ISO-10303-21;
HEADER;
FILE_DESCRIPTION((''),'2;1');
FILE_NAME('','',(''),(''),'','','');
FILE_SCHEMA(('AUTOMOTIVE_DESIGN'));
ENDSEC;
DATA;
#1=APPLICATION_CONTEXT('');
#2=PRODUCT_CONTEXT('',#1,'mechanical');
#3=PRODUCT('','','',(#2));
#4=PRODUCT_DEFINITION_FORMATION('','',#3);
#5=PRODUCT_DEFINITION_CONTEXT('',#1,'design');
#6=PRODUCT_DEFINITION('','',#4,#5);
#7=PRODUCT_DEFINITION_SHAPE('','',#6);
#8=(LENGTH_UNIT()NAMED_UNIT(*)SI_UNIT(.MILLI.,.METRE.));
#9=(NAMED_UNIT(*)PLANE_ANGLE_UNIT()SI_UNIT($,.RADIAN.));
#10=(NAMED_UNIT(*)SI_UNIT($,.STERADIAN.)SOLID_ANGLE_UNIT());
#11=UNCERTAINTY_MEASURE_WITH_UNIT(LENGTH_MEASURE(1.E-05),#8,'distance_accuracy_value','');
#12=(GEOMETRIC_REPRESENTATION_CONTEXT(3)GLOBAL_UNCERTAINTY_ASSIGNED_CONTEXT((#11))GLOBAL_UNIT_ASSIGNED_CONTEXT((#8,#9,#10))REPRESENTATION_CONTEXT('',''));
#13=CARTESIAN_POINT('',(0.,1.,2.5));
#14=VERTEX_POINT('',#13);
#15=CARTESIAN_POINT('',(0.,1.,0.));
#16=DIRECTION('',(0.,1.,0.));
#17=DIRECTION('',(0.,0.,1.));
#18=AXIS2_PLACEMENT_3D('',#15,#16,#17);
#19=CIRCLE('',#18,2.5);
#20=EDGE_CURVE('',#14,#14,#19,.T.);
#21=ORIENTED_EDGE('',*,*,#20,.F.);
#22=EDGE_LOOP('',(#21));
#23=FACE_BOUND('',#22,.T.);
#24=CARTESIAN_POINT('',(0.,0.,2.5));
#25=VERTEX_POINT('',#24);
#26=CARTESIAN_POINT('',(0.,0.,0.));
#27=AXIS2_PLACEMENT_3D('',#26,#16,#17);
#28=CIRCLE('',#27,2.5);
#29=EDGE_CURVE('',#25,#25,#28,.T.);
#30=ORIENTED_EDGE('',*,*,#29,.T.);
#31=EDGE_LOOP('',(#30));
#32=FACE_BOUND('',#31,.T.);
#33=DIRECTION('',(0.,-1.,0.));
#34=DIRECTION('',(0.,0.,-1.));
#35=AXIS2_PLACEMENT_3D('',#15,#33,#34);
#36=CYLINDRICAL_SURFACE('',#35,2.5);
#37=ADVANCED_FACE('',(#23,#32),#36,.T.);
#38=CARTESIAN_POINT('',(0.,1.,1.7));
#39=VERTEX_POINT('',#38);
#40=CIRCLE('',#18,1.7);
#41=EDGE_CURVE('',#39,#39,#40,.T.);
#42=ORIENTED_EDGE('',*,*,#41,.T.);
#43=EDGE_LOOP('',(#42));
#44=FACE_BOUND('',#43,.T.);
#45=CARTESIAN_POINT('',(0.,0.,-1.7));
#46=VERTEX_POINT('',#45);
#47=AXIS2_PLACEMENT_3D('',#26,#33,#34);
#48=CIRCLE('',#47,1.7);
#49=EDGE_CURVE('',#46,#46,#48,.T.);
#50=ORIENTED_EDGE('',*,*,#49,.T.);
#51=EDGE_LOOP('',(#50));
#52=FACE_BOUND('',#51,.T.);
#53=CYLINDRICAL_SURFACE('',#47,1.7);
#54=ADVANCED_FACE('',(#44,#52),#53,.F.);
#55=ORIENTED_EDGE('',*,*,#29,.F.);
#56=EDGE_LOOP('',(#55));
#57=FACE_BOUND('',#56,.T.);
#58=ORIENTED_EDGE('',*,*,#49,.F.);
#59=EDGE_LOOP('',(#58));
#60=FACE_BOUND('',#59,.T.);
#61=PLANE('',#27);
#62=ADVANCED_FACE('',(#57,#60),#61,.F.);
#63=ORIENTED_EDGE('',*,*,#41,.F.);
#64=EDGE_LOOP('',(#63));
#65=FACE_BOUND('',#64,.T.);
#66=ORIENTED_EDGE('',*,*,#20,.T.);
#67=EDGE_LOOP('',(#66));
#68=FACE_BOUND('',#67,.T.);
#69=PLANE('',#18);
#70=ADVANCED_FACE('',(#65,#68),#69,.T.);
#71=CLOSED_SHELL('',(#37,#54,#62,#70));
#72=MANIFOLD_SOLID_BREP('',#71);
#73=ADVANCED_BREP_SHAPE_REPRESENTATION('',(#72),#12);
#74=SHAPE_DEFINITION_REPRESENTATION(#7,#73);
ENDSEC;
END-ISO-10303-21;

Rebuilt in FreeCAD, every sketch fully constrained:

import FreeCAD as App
import Part
import Sketcher
Q = App.Units.Quantity

doc = App.newDocument("Part")
params = doc.addObject("Spreadsheet::Sheet", "Params")
for row, (alias, value) in enumerate([
    ("sketch1_diameter", "5 mm"),
    ("pad1_length", "1 mm"),
    ("sketch2_diameter", "3.4 mm"),
    ("hole_diameter", "3.4 mm"),
    ("hole_depth", "10 mm"),
], start=1):
    params.set(f"A{row}", alias)
    params.set(f"B{row}", "=" + value)
    params.setAlias(f"B{row}", alias)

body = doc.addObject("PartDesign::Body", "Body")

sketch1 = body.newObject("Sketcher::SketchObject", "Sketch")
sketch1.AttachmentSupport = (doc.getObject("XZ_Plane"), [""])
sketch1.MapMode = "FlatFace"
sketch1.addGeometry(Part.Circle(App.Vector(0, 0, 0), App.Vector(0, 0, 1), 2.5), False)
sketch1.addConstraint([
    Sketcher.Constraint("Coincident", 0, 3, -1, 1),
    Sketcher.Constraint("Diameter", 0, Q("5 mm")),
])
sketch1.setExpression("Constraints[1]", "Params.sketch1_diameter")
pad1 = body.newObject("PartDesign::Pad", "Pad")
pad1.Profile = sketch1
pad1.setExpression("Length", "Params.pad1_length")
pad1.Reversed = True

sketch2 = body.newObject("Sketcher::SketchObject", "Sketch001")
sketch2.AttachmentSupport = (doc.getObject("XZ_Plane"), [""])
sketch2.MapMode = "FlatFace"
sketch2.addGeometry(Part.Circle(App.Vector(0, 0, 0), App.Vector(0, 0, 1), 1.7), False)
sketch2.addConstraint([
    Sketcher.Constraint("Coincident", 0, 3, -1, 1),
    Sketcher.Constraint("Diameter", 0, Q("3.4 mm")),
])
sketch2.setExpression("Constraints[1]", "Params.sketch2_diameter")
doc.recompute()
hole = body.newObject("PartDesign::Hole", "Hole")
hole.Profile = sketch2
hole.ThreadType = "None"
hole.setExpression("Diameter", "Params.hole_diameter")
hole.DepthType = "Dimension"
hole.setExpression("Depth", "Params.hole_depth")
hole.DrillPoint = "Angled"
hole.DrillPointAngle = 118

doc.recompute()
